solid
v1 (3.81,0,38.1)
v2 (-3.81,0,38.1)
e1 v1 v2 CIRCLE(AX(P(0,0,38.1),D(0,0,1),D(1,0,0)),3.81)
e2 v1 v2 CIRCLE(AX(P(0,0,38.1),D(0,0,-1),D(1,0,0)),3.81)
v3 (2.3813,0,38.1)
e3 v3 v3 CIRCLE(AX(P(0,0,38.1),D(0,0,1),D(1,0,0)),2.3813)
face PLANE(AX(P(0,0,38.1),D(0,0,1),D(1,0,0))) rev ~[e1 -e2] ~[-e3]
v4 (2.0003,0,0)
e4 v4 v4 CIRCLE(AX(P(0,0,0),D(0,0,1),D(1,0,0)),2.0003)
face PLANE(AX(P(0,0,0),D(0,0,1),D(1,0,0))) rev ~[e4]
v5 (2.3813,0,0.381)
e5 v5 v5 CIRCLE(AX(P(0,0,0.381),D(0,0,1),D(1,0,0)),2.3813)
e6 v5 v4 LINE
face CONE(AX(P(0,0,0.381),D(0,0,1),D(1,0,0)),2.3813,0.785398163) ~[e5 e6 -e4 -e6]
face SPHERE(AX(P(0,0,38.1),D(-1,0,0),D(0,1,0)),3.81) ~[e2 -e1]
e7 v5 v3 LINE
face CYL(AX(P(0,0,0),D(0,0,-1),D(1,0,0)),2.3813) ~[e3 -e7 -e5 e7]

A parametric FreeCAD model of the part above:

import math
import FreeCAD as App
import Part
import Sketcher
from FreeCAD import Vector
Q = App.Units.Quantity


def edges_at(feature, points):
    """Names of the edges that pass closest to the given points."""
    edges = feature.Shape.Edges
    near = lambda p: min(range(len(edges)), key=lambda i: edges[i].distToShape(Part.Vertex(*p))[0])
    return sorted({f"Edge{near(p) + 1}" for p in points})

doc = App.newDocument("Part")
params = doc.addObject("Spreadsheet::Sheet", "Params")
for row, (alias, value) in enumerate([
    ("sketch1_diameter", "0.1875 in"),
    ("pad1_length", "1.5 in"),
    ("sketch2_radius", "0.15 in"),
    ("revolution_angle", "180 deg"),
    ("chamfer_size", "0.015 in"),
], start=1):
    params.set(f"A{row}", alias)
    params.set(f"B{row}", "=" + value)
    params.setAlias(f"B{row}", alias)

body = doc.addObject("PartDesign::Body", "Body")

# Sketch on XY plane
sketch1 = body.newObject("Sketcher::SketchObject", "Sketch")
sketch1.AttachmentSupport = (doc.getObject("XY_Plane"), [""])
sketch1.MapMode = "FlatFace"
sketch1.addGeometry(Part.Circle(Vector(0, 0, 0), Vector(0, 0, 1), 2.3813), False)
sketch1.addConstraint(Sketcher.Constraint("Coincident", 0, 3, -1, 1))
sketch1.addConstraint(Sketcher.Constraint("Diameter", 0, Q("0.1875 in")))
sketch1.setExpression("Constraints[1]", "Params.sketch1_diameter")
pad1 = body.newObject("PartDesign::Pad", "Pad")
pad1.Profile = sketch1
pad1.setExpression("Length", "Params.pad1_length")

# Sketch on XY plane
sketch2 = body.newObject("Sketcher::SketchObject", "Sketch001")
sketch2.AttachmentSupport = (doc.getObject("XY_Plane"), [""])
sketch2.MapMode = "FlatFace"
sketch2.AttachmentOffset = App.Placement(Vector(0, 0, 1.5 * 25.4), App.Rotation())
sketch2.addGeometry(Part.ArcOfCircle(Part.Circle(Vector(0, 0, 0), Vector(0, 0, 1), 3.81), math.radians(0), math.radians(180)), False)
sketch2.addGeometry(Part.LineSegment(Vector(-3.81, 0, 0), Vector(3.81, 0, 0)), False)
sketch2.addConstraint(Sketcher.Constraint("Coincident", 0, 1, 1, 2))
sketch2.addConstraint(Sketcher.Constraint("Coincident", 1, 1, 0, 2))
sketch2.addConstraint(Sketcher.Constraint("Horizontal", 1))
sketch2.addConstraint(Sketcher.Constraint("Coincident", 0, 3, -1, 1))
sketch2.addConstraint(Sketcher.Constraint("PointOnObject", 0, 1, -1))
sketch2.addConstraint(Sketcher.Constraint("Radius", 0, Q("0.15 in")))
sketch2.setExpression("Constraints[5]", "Params.sketch2_radius")
revolution = body.newObject("PartDesign::Revolution", "Revolution")
revolution.Profile = sketch2
revolution.ReferenceAxis = (sketch2, ["H_Axis"])
revolution.setExpression("Angle", "Params.revolution_angle")
doc.recompute()

chamfer = body.newObject("PartDesign::Chamfer", "Chamfer")
chamfer.Base = (revolution, edges_at(revolution, [(-2.381, 0, 0)]))
chamfer.setExpression("Size", "Params.chamfer_size")

doc.recompute()
